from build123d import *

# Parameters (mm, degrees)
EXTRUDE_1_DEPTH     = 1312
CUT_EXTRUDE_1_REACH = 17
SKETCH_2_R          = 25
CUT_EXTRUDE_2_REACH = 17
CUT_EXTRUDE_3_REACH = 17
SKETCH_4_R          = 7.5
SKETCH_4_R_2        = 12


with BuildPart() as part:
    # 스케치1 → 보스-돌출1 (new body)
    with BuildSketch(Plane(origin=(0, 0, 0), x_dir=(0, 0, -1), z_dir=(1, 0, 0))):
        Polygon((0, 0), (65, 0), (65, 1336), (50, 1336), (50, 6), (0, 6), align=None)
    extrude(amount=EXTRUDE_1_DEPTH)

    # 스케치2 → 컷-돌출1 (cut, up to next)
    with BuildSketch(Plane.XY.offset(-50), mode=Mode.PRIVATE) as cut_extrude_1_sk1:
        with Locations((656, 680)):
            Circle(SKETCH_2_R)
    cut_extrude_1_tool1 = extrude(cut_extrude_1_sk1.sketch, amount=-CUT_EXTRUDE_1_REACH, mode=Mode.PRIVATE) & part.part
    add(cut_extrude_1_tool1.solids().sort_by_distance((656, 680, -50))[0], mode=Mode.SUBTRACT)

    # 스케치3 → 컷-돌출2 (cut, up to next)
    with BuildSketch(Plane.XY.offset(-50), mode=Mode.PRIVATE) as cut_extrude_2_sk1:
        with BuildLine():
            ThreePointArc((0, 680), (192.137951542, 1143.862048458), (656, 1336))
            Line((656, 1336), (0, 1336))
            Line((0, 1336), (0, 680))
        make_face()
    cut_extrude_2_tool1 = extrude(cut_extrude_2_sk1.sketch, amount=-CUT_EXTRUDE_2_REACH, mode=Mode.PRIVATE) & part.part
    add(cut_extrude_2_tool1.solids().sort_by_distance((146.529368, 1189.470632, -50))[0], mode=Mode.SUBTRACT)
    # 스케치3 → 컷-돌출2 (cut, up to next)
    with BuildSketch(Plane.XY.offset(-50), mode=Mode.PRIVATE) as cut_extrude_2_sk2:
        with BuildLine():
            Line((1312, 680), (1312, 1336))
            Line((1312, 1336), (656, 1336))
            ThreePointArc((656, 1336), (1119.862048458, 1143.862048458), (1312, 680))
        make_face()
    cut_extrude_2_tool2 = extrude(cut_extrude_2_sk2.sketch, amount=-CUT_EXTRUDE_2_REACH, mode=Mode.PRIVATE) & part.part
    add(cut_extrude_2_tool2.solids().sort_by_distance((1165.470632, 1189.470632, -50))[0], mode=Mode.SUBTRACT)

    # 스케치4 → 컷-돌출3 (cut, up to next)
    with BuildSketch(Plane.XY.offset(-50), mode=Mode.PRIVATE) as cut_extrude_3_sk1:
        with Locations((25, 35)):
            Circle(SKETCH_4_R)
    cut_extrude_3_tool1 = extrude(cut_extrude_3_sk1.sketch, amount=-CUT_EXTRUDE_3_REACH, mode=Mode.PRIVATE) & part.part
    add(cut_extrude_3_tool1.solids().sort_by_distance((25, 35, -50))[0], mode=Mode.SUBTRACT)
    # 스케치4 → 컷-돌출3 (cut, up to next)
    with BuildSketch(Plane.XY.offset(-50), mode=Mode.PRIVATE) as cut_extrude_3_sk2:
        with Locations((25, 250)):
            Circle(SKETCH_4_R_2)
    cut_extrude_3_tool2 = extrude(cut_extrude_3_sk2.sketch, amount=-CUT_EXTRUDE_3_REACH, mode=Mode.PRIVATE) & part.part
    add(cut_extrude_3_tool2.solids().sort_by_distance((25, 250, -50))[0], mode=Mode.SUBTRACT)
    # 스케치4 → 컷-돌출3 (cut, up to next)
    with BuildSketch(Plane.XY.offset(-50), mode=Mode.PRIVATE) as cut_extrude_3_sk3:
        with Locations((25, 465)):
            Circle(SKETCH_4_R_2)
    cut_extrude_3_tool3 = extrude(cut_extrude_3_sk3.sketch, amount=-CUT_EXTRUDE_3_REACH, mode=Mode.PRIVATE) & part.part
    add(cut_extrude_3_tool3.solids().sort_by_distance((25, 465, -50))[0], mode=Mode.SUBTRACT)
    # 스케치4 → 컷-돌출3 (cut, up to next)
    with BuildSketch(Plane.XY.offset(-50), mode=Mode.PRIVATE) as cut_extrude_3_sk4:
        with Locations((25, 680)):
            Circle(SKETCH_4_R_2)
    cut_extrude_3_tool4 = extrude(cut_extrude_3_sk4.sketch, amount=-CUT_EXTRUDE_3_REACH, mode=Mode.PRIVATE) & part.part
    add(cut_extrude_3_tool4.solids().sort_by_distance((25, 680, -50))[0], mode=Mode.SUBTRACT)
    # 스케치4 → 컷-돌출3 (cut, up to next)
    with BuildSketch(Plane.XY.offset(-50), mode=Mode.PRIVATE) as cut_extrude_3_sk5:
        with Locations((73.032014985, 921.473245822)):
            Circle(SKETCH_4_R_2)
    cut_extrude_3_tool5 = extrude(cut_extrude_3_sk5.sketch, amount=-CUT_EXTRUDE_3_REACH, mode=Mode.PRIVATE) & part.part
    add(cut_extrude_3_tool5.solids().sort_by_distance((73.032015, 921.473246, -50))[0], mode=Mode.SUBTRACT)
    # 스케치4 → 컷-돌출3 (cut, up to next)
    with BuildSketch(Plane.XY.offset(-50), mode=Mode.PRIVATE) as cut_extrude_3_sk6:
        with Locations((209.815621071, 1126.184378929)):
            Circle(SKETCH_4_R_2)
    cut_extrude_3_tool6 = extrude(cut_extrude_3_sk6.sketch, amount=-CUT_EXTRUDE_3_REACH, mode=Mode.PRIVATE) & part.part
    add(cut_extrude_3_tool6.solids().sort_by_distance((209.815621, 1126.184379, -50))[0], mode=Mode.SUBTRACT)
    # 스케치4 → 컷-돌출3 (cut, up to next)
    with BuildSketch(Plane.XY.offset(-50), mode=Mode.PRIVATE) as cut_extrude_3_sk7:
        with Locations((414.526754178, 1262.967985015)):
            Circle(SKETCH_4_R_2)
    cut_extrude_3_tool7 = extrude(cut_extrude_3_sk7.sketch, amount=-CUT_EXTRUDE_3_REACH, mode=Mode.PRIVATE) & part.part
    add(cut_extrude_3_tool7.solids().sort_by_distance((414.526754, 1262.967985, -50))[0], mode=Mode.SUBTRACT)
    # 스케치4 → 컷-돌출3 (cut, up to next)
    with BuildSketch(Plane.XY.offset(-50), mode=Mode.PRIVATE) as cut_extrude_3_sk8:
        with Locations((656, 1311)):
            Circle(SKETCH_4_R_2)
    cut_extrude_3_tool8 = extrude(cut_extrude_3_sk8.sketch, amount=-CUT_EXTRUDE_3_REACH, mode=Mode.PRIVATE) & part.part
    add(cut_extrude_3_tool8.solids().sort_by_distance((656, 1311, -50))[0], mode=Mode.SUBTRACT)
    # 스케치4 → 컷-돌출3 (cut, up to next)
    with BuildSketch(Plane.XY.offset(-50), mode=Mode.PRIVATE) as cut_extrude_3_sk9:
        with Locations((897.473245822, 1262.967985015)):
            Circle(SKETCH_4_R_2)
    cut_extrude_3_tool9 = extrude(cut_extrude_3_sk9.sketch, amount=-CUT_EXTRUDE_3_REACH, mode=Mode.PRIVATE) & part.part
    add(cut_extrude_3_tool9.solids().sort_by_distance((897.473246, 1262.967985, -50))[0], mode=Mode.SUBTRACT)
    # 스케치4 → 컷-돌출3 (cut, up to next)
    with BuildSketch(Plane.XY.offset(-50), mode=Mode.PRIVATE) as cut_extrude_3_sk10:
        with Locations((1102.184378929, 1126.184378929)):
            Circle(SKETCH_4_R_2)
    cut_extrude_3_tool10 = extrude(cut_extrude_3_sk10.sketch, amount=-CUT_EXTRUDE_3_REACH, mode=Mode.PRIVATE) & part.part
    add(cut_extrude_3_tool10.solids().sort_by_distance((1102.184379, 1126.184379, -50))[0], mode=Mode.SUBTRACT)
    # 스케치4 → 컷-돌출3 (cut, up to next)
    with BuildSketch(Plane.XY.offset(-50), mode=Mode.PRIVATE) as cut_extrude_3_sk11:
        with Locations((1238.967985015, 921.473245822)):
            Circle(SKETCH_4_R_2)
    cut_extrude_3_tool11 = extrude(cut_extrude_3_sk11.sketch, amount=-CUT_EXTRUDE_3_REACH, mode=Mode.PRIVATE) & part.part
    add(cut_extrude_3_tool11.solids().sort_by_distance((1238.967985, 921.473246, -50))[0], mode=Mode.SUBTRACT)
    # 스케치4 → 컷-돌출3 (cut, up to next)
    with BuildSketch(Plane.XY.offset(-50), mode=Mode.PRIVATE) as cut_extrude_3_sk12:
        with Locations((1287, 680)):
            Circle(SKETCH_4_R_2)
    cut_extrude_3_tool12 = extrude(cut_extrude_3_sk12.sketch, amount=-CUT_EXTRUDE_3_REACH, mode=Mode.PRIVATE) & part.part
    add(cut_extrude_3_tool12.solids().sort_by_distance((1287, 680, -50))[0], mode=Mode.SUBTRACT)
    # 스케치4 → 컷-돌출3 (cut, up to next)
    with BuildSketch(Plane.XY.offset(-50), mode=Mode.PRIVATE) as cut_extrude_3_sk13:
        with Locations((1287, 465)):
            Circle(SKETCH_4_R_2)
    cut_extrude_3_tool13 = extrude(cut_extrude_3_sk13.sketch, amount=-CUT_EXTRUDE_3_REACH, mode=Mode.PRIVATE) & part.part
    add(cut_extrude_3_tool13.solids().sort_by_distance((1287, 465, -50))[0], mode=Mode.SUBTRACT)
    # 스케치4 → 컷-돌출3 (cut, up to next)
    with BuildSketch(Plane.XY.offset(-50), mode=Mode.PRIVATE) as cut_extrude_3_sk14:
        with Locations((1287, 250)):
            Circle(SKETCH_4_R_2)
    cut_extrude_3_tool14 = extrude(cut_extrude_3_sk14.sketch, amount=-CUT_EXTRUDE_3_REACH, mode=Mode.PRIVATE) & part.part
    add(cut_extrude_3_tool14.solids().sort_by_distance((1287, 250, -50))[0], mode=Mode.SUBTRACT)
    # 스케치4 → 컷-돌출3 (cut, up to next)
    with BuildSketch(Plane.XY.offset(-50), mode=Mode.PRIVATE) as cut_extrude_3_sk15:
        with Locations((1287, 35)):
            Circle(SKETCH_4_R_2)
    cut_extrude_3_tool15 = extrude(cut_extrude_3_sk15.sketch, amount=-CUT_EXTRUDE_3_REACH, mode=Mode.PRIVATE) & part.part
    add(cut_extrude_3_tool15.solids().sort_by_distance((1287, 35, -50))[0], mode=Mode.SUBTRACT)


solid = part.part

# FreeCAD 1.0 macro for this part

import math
import FreeCAD as App
import Part
import Sketcher
from FreeCAD import Vector
Q = App.Units.Quantity


def add_polygon(sketch, points):
    """Adds a closed chain of lines whose ends are joined by coincident constraints."""
    first, n = sketch.GeometryCount, len(points)
    for a, b in zip(points, points[1:] + points[:1]):
        sketch.addGeometry(Part.LineSegment(App.Vector(*a, 0), App.Vector(*b, 0)), False)
    for i in range(n):
        sketch.addConstraint(Sketcher.Constraint("Coincident", first + i, 2, first + (i + 1) % n, 1))

doc = App.newDocument("Part")
body = doc.addObject("PartDesign::Body", "Body")

# Sketch on YZ plane
sketch1 = body.newObject("Sketcher::SketchObject", "Sketch")
sketch1.AttachmentSupport = (doc.getObject("YZ_Plane"), [""])
sketch1.MapMode = "FlatFace"
add_polygon(sketch1, [(0, 0), (0, -65), (1336, -65), (1336, -50), (6, -50), (6, 0)])  # lines 0-5
sketch1.addConstraint(Sketcher.Constraint("Vertical", 0))
sketch1.addConstraint(Sketcher.Constraint("Horizontal", 1))
sketch1.addConstraint(Sketcher.Constraint("Vertical", 2))
sketch1.addConstraint(Sketcher.Constraint("Horizontal", 3))
sketch1.addConstraint(Sketcher.Constraint("Vertical", 4))
sketch1.addConstraint(Sketcher.Constraint("Horizontal", 5))
sketch1.addConstraint(Sketcher.Constraint("Coincident", 5, 2, -1, 1))
sketch1.addConstraint(Sketcher.Constraint("DistanceX", 1, 1, 1, 2, Q("1336 mm")))
sketch1.addConstraint(Sketcher.Constraint("DistanceX", 3, 2, 3, 1, Q("1330 mm")))
sketch1.addConstraint(Sketcher.Constraint("DistanceY", 0, 2, 0, 1, Q("65 mm")))
sketch1.addConstraint(Sketcher.Constraint("DistanceY", 2, 1, 2, 2, Q("15 mm")))
pad1 = body.newObject("PartDesign::Pad", "Pad")
pad1.Profile = sketch1
pad1.Length = 1312

# Sketch on XY plane
sketch2 = body.newObject("Sketcher::SketchObject", "Sketch001")
sketch2.AttachmentSupport = (doc.getObject("XY_Plane"), [""])
sketch2.MapMode = "FlatFace"
sketch2.AttachmentOffset = App.Placement(Vector(0, 0, -50), App.Rotation())
sketch2.addGeometry(Part.Circle(Vector(656, 680, 0), Vector(0, 0, 1), 25), False)
sketch2.addConstraint(Sketcher.Constraint("Diameter", 0, Q("50 mm")))
sketch2.addConstraint(Sketcher.Constraint("DistanceX", -1, 1, 0, 3, Q("656 mm")))
sketch2.addConstraint(Sketcher.Constraint("DistanceY", -1, 1, 0, 3, Q("680 mm")))
pocket1 = body.newObject("PartDesign::Pocket", "Pocket")
pocket1.Profile = sketch2
pocket1.Type = "UpToFirst"

# Sketch on XY plane
sketch3 = body.newObject("Sketcher::SketchObject", "Sketch002")
sketch3.AttachmentSupport = (doc.getObject("XY_Plane"), [""])
sketch3.MapMode = "FlatFace"
sketch3.AttachmentOffset = App.Placement(Vector(0, 0, -50), App.Rotation())
sketch3.addGeometry(Part.ArcOfCircle(Part.Circle(Vector(656, 680, 0), Vector(0, 0, 1), 656), math.radians(90), math.radians(180)), False)
sketch3.addGeometry(Part.LineSegment(Vector(656, 1336, 0), Vector(0, 1336, 0)), False)
sketch3.addGeometry(Part.LineSegment(Vector(0, 1336, 0), Vector(0, 680, 0)), False)
sketch3.addConstraint(Sketcher.Constraint("Tangent", 0, 1, 1, 1))
sketch3.addConstraint(Sketcher.Constraint("Coincident", 1, 2, 2, 1))
sketch3.addConstraint(Sketcher.Constraint("Tangent", 2, 2, 0, 2))
sketch3.addConstraint(Sketcher.Constraint("Horizontal", 1))
sketch3.addConstraint(Sketcher.Constraint("Vertical", 2))
sketch3.addConstraint(Sketcher.Constraint("PointOnObject", 1, 2, -2))
sketch3.addConstraint(Sketcher.Constraint("Radius", 0, Q("656 mm")))
sketch3.addConstraint(Sketcher.Constraint("DistanceY", -1, 1, 0, 3, Q("680 mm")))
pocket2 = body.newObject("PartDesign::Pocket", "Pocket001")
pocket2.Profile = sketch3
pocket2.Type = "UpToFirst"

# Sketch on XY plane
sketch4 = body.newObject("Sketcher::SketchObject", "Sketch003")
sketch4.AttachmentSupport = (doc.getObject("XY_Plane"), [""])
sketch4.MapMode = "FlatFace"
sketch4.AttachmentOffset = App.Placement(Vector(0, 0, -50), App.Rotation())
sketch4.addGeometry(Part.LineSegment(Vector(1312, 680, 0), Vector(1312, 1336, 0)), False)
sketch4.addGeometry(Part.LineSegment(Vector(1312, 1336, 0), Vector(656, 1336, 0)), False)
sketch4.addGeometry(Part.ArcOfCircle(Part.Circle(Vector(656, 680, 0), Vector(0, 0, 1), 656), math.radians(0), math.radians(90)), False)
sketch4.addConstraint(Sketcher.Constraint("Coincident", 0, 2, 1, 1))
sketch4.addConstraint(Sketcher.Constraint("Tangent", 1, 2, 2, 2))
sketch4.addConstraint(Sketcher.Constraint("Tangent", 2, 1, 0, 1))
sketch4.addConstraint(Sketcher.Constraint("Vertical", 0))
sketch4.addConstraint(Sketcher.Constraint("Horizontal", 1))
sketch4.addConstraint(Sketcher.Constraint("Radius", 2, Q("656 mm")))
sketch4.addConstraint(Sketcher.Constraint("DistanceX", -1, 1, 2, 3, Q("656 mm")))
sketch4.addConstraint(Sketcher.Constraint("DistanceY", -1, 1, 2, 3, Q("680 mm")))
pocket3 = body.newObject("PartDesign::Pocket", "Pocket002")
pocket3.Profile = sketch4
pocket3.Type = "UpToFirst"

# Sketch on XY plane
sketch5 = body.newObject("Sketcher::SketchObject", "Sketch004")
sketch5.AttachmentSupport = (doc.getObject("XY_Plane"), [""])
sketch5.MapMode = "FlatFace"
sketch5.AttachmentOffset = App.Placement(Vector(0, 0, -50), App.Rotation())
sketch5.addGeometry(Part.Circle(Vector(25, 35, 0), Vector(0, 0, 1), 8), False)
sketch5.addConstraint(Sketcher.Constraint("Diameter", 0, Q("15 mm")))
sketch5.addConstraint(Sketcher.Constraint("DistanceX", -1, 1, 0, 3, Q("25 mm")))
sketch5.addConstraint(Sketcher.Constraint("DistanceY", -1, 1, 0, 3, Q("35 mm")))
pocket4 = body.newObject("PartDesign::Pocket", "Pocket003")
pocket4.Profile = sketch5
pocket4.Type = "UpToFirst"

# Sketch on XY plane
sketch6 = body.newObject("Sketcher::SketchObject", "Sketch005")
sketch6.AttachmentSupport = (doc.getObject("XY_Plane"), [""])
sketch6.MapMode = "FlatFace"
sketch6.AttachmentOffset = App.Placement(Vector(0, 0, -50), App.Rotation())
sketch6.addGeometry(Part.Circle(Vector(25, 250, 0), Vector(0, 0, 1), 12), False)
sketch6.addConstraint(Sketcher.Constraint("Diameter", 0, Q("24 mm")))
sketch6.addConstraint(Sketcher.Constraint("DistanceX", -1, 1, 0, 3, Q("25 mm")))
sketch6.addConstraint(Sketcher.Constraint("DistanceY", -1, 1, 0, 3, Q("250 mm")))
pocket5 = body.newObject("PartDesign::Pocket", "Pocket004")
pocket5.Profile = sketch6
pocket5.Type = "UpToFirst"

# Sketch on XY plane
sketch7 = body.newObject("Sketcher::SketchObject", "Sketch006")
sketch7.AttachmentSupport = (doc.getObject("XY_Plane"), [""])
sketch7.MapMode = "FlatFace"
sketch7.AttachmentOffset = App.Placement(Vector(0, 0, -50), App.Rotation())
sketch7.addGeometry(Part.Circle(Vector(25, 465, 0), Vector(0, 0, 1), 12), False)
sketch7.addConstraint(Sketcher.Constraint("Diameter", 0, Q("24 mm")))
sketch7.addConstraint(Sketcher.Constraint("DistanceX", -1, 1, 0, 3, Q("25 mm")))
sketch7.addConstraint(Sketcher.Constraint("DistanceY", -1, 1, 0, 3, Q("465 mm")))
pocket6 = body.newObject("PartDesign::Pocket", "Pocket005")
pocket6.Profile = sketch7
pocket6.Type = "UpToFirst"

# Sketch on XY plane
sketch8 = body.newObject("Sketcher::SketchObject", "Sketch007")
sketch8.AttachmentSupport = (doc.getObject("XY_Plane"), [""])
sketch8.MapMode = "FlatFace"
sketch8.AttachmentOffset = App.Placement(Vector(0, 0, -50), App.Rotation())
sketch8.addGeometry(Part.Circle(Vector(25, 680, 0), Vector(0, 0, 1), 12), False)
sketch8.addConstraint(Sketcher.Constraint("Diameter", 0, Q("24 mm")))
sketch8.addConstraint(Sketcher.Constraint("DistanceX", -1, 1, 0, 3, Q("25 mm")))
sketch8.addConstraint(Sketcher.Constraint("DistanceY", -1, 1, 0, 3, Q("680 mm")))
pocket7 = body.newObject("PartDesign::Pocket", "Pocket006")
pocket7.Profile = sketch8
pocket7.Type = "UpToFirst"

# Sketch on XY plane
sketch9 = body.newObject("Sketcher::SketchObject", "Sketch008")
sketch9.AttachmentSupport = (doc.getObject("XY_Plane"), [""])
sketch9.MapMode = "FlatFace"
sketch9.AttachmentOffset = App.Placement(Vector(0, 0, -50), App.Rotation())
sketch9.addGeometry(Part.Circle(Vector(73, 921, 0), Vector(0, 0, 1), 12), False)
sketch9.addConstraint(Sketcher.Constraint("Diameter", 0, Q("24 mm")))
sketch9.addConstraint(Sketcher.Constraint("DistanceX", -1, 1, 0, 3, Q("73.032015 mm")))
sketch9.addConstraint(Sketcher.Constraint("DistanceY", -1, 1, 0, 3, Q("921.473246 mm")))
pocket8 = body.newObject("PartDesign::Pocket", "Pocket007")
pocket8.Profile = sketch9
pocket8.Type = "UpToFirst"

# Sketch on XY plane
sketch10 = body.newObject("Sketcher::SketchObject", "Sketch009")
sketch10.AttachmentSupport = (doc.getObject("XY_Plane"), [""])
sketch10.MapMode = "FlatFace"
sketch10.AttachmentOffset = App.Placement(Vector(0, 0, -50), App.Rotation())
sketch10.addGeometry(Part.Circle(Vector(210, 1126, 0), Vector(0, 0, 1), 12), False)
sketch10.addConstraint(Sketcher.Constraint("Diameter", 0, Q("24 mm")))
sketch10.addConstraint(Sketcher.Constraint("DistanceX", -1, 1, 0, 3, Q("209.815621 mm")))
sketch10.addConstraint(Sketcher.Constraint("DistanceY", -1, 1, 0, 3, Q("1126.184379 mm")))
pocket9 = body.newObject("PartDesign::Pocket", "Pocket008")
pocket9.Profile = sketch10
pocket9.Type = "UpToFirst"

# Sketch on XY plane
sketch11 = body.newObject("Sketcher::SketchObject", "Sketch010")
sketch11.AttachmentSupport = (doc.getObject("XY_Plane"), [""])
sketch11.MapMode = "FlatFace"
sketch11.AttachmentOffset = App.Placement(Vector(0, 0, -50), App.Rotation())
sketch11.addGeometry(Part.Circle(Vector(415, 1263, 0), Vector(0, 0, 1), 12), False)
sketch11.addConstraint(Sketcher.Constraint("Diameter", 0, Q("24 mm")))
sketch11.addConstraint(Sketcher.Constraint("DistanceX", -1, 1, 0, 3, Q("414.526754 mm")))
sketch11.addConstraint(Sketcher.Constraint("DistanceY", -1, 1, 0, 3, Q("1262.967985 mm")))
pocket10 = body.newObject("PartDesign::Pocket", "Pocket009")
pocket10.Profile = sketch11
pocket10.Type = "UpToFirst"

# Sketch on XY plane
sketch12 = body.newObject("Sketcher::SketchObject", "Sketch011")
sketch12.AttachmentSupport = (doc.getObject("XY_Plane"), [""])
sketch12.MapMode = "FlatFace"
sketch12.AttachmentOffset = App.Placement(Vector(0, 0, -50), App.Rotation())
sketch12.addGeometry(Part.Circle(Vector(656, 1311, 0), Vector(0, 0, 1), 12), False)
sketch12.addConstraint(Sketcher.Constraint("Diameter", 0, Q("24 mm")))
sketch12.addConstraint(Sketcher.Constraint("DistanceX", -1, 1, 0, 3, Q("656 mm")))
sketch12.addConstraint(Sketcher.Constraint("DistanceY", -1, 1, 0, 3, Q("1311 mm")))
pocket11 = body.newObject("PartDesign::Pocket", "Pocket010")
pocket11.Profile = sketch12
pocket11.Type = "UpToFirst"

# Sketch on XY plane
sketch13 = body.newObject("Sketcher::SketchObject", "Sketch012")
sketch13.AttachmentSupport = (doc.getObject("XY_Plane"), [""])
sketch13.MapMode = "FlatFace"
sketch13.AttachmentOffset = App.Placement(Vector(0, 0, -50), App.Rotation())
sketch13.addGeometry(Part.Circle(Vector(897, 1263, 0), Vector(0, 0, 1), 12), False)
sketch13.addConstraint(Sketcher.Constraint("Diameter", 0, Q("24 mm")))
sketch13.addConstraint(Sketcher.Constraint("DistanceX", -1, 1, 0, 3, Q("897.473246 mm")))
sketch13.addConstraint(Sketcher.Constraint("DistanceY", -1, 1, 0, 3, Q("1262.967985 mm")))
pocket12 = body.newObject("PartDesign::Pocket", "Pocket011")
pocket12.Profile = sketch13
pocket12.Type = "UpToFirst"

# Sketch on XY plane
sketch14 = body.newObject("Sketcher::SketchObject", "Sketch013")
sketch14.AttachmentSupport = (doc.getObject("XY_Plane"), [""])
sketch14.MapMode = "FlatFace"
sketch14.AttachmentOffset = App.Placement(Vector(0, 0, -50), App.Rotation())
sketch14.addGeometry(Part.Circle(Vector(1102, 1126, 0), Vector(0, 0, 1), 12), False)
sketch14.addConstraint(Sketcher.Constraint("Diameter", 0, Q("24 mm")))
sketch14.addConstraint(Sketcher.Constraint("DistanceX", -1, 1, 0, 3, Q("1102.184379 mm")))
sketch14.addConstraint(Sketcher.Constraint("DistanceY", -1, 1, 0, 3, Q("1126.184379 mm")))
pocket13 = body.newObject("PartDesign::Pocket", "Pocket012")
pocket13.Profile = sketch14
pocket13.Type = "UpToFirst"

# Sketch on XY plane
sketch15 = body.newObject("Sketcher::SketchObject", "Sketch014")
sketch15.AttachmentSupport = (doc.getObject("XY_Plane"), [""])
sketch15.MapMode = "FlatFace"
sketch15.AttachmentOffset = App.Placement(Vector(0, 0, -50), App.Rotation())
sketch15.addGeometry(Part.Circle(Vector(1239, 921, 0), Vector(0, 0, 1), 12), False)
sketch15.addConstraint(Sketcher.Constraint("Diameter", 0, Q("24 mm")))
sketch15.addConstraint(Sketcher.Constraint("DistanceX", -1, 1, 0, 3, Q("1238.967985 mm")))
sketch15.addConstraint(Sketcher.Constraint("DistanceY", -1, 1, 0, 3, Q("921.473246 mm")))
pocket14 = body.newObject("PartDesign::Pocket", "Pocket013")
pocket14.Profile = sketch15
pocket14.Type = "UpToFirst"

# Sketch on XY plane
sketch16 = body.newObject("Sketcher::SketchObject", "Sketch015")
sketch16.AttachmentSupport = (doc.getObject("XY_Plane"), [""])
sketch16.MapMode = "FlatFace"
sketch16.AttachmentOffset = App.Placement(Vector(0, 0, -50), App.Rotation())
sketch16.addGeometry(Part.Circle(Vector(1287, 680, 0), Vector(0, 0, 1), 12), False)
sketch16.addConstraint(Sketcher.Constraint("Diameter", 0, Q("24 mm")))
sketch16.addConstraint(Sketcher.Constraint("DistanceX", -1, 1, 0, 3, Q("1287 mm")))
sketch16.addConstraint(Sketcher.Constraint("DistanceY", -1, 1, 0, 3, Q("680 mm")))
pocket15 = body.newObject("PartDesign::Pocket", "Pocket014")
pocket15.Profile = sketch16
pocket15.Type = "UpToFirst"

# Sketch on XY plane
sketch17 = body.newObject("Sketcher::SketchObject", "Sketch016")
sketch17.AttachmentSupport = (doc.getObject("XY_Plane"), [""])
sketch17.MapMode = "FlatFace"
sketch17.AttachmentOffset = App.Placement(Vector(0, 0, -50), App.Rotation())
sketch17.addGeometry(Part.Circle(Vector(1287, 465, 0), Vector(0, 0, 1), 12), False)
sketch17.addConstraint(Sketcher.Constraint("Diameter", 0, Q("24 mm")))
sketch17.addConstraint(Sketcher.Constraint("DistanceX", -1, 1, 0, 3, Q("1287 mm")))
sketch17.addConstraint(Sketcher.Constraint("DistanceY", -1, 1, 0, 3, Q("465 mm")))
pocket16 = body.newObject("PartDesign::Pocket", "Pocket015")
pocket16.Profile = sketch17
pocket16.Type = "UpToFirst"

# Sketch on XY plane
sketch18 = body.newObject("Sketcher::SketchObject", "Sketch017")
sketch18.AttachmentSupport = (doc.getObject("XY_Plane"), [""])
sketch18.MapMode = "FlatFace"
sketch18.AttachmentOffset = App.Placement(Vector(0, 0, -50), App.Rotation())
sketch18.addGeometry(Part.Circle(Vector(1287, 250, 0), Vector(0, 0, 1), 12), False)
sketch18.addConstraint(Sketcher.Constraint("Diameter", 0, Q("24 mm")))
sketch18.addConstraint(Sketcher.Constraint("DistanceX", -1, 1, 0, 3, Q("1287 mm")))
sketch18.addConstraint(Sketcher.Constraint("DistanceY", -1, 1, 0, 3, Q("250 mm")))
pocket17 = body.newObject("PartDesign::Pocket", "Pocket016")
pocket17.Profile = sketch18
pocket17.Type = "UpToFirst"

# Sketch on XY plane
sketch19 = body.newObject("Sketcher::SketchObject", "Sketch018")
sketch19.AttachmentSupport = (doc.getObject("XY_Plane"), [""])
sketch19.MapMode = "FlatFace"
sketch19.AttachmentOffset = App.Placement(Vector(0, 0, -50), App.Rotation())
sketch19.addGeometry(Part.Circle(Vector(1287, 35, 0), Vector(0, 0, 1), 12), False)
sketch19.addConstraint(Sketcher.Constraint("Diameter", 0, Q("24 mm")))
sketch19.addConstraint(Sketcher.Constraint("DistanceX", -1, 1, 0, 3, Q("1287 mm")))
sketch19.addConstraint(Sketcher.Constraint("DistanceY", -1, 1, 0, 3, Q("35 mm")))
pocket18 = body.newObject("PartDesign::Pocket", "Pocket017")
pocket18.Profile = sketch19
pocket18.Type = "UpToFirst"

doc.recompute()
